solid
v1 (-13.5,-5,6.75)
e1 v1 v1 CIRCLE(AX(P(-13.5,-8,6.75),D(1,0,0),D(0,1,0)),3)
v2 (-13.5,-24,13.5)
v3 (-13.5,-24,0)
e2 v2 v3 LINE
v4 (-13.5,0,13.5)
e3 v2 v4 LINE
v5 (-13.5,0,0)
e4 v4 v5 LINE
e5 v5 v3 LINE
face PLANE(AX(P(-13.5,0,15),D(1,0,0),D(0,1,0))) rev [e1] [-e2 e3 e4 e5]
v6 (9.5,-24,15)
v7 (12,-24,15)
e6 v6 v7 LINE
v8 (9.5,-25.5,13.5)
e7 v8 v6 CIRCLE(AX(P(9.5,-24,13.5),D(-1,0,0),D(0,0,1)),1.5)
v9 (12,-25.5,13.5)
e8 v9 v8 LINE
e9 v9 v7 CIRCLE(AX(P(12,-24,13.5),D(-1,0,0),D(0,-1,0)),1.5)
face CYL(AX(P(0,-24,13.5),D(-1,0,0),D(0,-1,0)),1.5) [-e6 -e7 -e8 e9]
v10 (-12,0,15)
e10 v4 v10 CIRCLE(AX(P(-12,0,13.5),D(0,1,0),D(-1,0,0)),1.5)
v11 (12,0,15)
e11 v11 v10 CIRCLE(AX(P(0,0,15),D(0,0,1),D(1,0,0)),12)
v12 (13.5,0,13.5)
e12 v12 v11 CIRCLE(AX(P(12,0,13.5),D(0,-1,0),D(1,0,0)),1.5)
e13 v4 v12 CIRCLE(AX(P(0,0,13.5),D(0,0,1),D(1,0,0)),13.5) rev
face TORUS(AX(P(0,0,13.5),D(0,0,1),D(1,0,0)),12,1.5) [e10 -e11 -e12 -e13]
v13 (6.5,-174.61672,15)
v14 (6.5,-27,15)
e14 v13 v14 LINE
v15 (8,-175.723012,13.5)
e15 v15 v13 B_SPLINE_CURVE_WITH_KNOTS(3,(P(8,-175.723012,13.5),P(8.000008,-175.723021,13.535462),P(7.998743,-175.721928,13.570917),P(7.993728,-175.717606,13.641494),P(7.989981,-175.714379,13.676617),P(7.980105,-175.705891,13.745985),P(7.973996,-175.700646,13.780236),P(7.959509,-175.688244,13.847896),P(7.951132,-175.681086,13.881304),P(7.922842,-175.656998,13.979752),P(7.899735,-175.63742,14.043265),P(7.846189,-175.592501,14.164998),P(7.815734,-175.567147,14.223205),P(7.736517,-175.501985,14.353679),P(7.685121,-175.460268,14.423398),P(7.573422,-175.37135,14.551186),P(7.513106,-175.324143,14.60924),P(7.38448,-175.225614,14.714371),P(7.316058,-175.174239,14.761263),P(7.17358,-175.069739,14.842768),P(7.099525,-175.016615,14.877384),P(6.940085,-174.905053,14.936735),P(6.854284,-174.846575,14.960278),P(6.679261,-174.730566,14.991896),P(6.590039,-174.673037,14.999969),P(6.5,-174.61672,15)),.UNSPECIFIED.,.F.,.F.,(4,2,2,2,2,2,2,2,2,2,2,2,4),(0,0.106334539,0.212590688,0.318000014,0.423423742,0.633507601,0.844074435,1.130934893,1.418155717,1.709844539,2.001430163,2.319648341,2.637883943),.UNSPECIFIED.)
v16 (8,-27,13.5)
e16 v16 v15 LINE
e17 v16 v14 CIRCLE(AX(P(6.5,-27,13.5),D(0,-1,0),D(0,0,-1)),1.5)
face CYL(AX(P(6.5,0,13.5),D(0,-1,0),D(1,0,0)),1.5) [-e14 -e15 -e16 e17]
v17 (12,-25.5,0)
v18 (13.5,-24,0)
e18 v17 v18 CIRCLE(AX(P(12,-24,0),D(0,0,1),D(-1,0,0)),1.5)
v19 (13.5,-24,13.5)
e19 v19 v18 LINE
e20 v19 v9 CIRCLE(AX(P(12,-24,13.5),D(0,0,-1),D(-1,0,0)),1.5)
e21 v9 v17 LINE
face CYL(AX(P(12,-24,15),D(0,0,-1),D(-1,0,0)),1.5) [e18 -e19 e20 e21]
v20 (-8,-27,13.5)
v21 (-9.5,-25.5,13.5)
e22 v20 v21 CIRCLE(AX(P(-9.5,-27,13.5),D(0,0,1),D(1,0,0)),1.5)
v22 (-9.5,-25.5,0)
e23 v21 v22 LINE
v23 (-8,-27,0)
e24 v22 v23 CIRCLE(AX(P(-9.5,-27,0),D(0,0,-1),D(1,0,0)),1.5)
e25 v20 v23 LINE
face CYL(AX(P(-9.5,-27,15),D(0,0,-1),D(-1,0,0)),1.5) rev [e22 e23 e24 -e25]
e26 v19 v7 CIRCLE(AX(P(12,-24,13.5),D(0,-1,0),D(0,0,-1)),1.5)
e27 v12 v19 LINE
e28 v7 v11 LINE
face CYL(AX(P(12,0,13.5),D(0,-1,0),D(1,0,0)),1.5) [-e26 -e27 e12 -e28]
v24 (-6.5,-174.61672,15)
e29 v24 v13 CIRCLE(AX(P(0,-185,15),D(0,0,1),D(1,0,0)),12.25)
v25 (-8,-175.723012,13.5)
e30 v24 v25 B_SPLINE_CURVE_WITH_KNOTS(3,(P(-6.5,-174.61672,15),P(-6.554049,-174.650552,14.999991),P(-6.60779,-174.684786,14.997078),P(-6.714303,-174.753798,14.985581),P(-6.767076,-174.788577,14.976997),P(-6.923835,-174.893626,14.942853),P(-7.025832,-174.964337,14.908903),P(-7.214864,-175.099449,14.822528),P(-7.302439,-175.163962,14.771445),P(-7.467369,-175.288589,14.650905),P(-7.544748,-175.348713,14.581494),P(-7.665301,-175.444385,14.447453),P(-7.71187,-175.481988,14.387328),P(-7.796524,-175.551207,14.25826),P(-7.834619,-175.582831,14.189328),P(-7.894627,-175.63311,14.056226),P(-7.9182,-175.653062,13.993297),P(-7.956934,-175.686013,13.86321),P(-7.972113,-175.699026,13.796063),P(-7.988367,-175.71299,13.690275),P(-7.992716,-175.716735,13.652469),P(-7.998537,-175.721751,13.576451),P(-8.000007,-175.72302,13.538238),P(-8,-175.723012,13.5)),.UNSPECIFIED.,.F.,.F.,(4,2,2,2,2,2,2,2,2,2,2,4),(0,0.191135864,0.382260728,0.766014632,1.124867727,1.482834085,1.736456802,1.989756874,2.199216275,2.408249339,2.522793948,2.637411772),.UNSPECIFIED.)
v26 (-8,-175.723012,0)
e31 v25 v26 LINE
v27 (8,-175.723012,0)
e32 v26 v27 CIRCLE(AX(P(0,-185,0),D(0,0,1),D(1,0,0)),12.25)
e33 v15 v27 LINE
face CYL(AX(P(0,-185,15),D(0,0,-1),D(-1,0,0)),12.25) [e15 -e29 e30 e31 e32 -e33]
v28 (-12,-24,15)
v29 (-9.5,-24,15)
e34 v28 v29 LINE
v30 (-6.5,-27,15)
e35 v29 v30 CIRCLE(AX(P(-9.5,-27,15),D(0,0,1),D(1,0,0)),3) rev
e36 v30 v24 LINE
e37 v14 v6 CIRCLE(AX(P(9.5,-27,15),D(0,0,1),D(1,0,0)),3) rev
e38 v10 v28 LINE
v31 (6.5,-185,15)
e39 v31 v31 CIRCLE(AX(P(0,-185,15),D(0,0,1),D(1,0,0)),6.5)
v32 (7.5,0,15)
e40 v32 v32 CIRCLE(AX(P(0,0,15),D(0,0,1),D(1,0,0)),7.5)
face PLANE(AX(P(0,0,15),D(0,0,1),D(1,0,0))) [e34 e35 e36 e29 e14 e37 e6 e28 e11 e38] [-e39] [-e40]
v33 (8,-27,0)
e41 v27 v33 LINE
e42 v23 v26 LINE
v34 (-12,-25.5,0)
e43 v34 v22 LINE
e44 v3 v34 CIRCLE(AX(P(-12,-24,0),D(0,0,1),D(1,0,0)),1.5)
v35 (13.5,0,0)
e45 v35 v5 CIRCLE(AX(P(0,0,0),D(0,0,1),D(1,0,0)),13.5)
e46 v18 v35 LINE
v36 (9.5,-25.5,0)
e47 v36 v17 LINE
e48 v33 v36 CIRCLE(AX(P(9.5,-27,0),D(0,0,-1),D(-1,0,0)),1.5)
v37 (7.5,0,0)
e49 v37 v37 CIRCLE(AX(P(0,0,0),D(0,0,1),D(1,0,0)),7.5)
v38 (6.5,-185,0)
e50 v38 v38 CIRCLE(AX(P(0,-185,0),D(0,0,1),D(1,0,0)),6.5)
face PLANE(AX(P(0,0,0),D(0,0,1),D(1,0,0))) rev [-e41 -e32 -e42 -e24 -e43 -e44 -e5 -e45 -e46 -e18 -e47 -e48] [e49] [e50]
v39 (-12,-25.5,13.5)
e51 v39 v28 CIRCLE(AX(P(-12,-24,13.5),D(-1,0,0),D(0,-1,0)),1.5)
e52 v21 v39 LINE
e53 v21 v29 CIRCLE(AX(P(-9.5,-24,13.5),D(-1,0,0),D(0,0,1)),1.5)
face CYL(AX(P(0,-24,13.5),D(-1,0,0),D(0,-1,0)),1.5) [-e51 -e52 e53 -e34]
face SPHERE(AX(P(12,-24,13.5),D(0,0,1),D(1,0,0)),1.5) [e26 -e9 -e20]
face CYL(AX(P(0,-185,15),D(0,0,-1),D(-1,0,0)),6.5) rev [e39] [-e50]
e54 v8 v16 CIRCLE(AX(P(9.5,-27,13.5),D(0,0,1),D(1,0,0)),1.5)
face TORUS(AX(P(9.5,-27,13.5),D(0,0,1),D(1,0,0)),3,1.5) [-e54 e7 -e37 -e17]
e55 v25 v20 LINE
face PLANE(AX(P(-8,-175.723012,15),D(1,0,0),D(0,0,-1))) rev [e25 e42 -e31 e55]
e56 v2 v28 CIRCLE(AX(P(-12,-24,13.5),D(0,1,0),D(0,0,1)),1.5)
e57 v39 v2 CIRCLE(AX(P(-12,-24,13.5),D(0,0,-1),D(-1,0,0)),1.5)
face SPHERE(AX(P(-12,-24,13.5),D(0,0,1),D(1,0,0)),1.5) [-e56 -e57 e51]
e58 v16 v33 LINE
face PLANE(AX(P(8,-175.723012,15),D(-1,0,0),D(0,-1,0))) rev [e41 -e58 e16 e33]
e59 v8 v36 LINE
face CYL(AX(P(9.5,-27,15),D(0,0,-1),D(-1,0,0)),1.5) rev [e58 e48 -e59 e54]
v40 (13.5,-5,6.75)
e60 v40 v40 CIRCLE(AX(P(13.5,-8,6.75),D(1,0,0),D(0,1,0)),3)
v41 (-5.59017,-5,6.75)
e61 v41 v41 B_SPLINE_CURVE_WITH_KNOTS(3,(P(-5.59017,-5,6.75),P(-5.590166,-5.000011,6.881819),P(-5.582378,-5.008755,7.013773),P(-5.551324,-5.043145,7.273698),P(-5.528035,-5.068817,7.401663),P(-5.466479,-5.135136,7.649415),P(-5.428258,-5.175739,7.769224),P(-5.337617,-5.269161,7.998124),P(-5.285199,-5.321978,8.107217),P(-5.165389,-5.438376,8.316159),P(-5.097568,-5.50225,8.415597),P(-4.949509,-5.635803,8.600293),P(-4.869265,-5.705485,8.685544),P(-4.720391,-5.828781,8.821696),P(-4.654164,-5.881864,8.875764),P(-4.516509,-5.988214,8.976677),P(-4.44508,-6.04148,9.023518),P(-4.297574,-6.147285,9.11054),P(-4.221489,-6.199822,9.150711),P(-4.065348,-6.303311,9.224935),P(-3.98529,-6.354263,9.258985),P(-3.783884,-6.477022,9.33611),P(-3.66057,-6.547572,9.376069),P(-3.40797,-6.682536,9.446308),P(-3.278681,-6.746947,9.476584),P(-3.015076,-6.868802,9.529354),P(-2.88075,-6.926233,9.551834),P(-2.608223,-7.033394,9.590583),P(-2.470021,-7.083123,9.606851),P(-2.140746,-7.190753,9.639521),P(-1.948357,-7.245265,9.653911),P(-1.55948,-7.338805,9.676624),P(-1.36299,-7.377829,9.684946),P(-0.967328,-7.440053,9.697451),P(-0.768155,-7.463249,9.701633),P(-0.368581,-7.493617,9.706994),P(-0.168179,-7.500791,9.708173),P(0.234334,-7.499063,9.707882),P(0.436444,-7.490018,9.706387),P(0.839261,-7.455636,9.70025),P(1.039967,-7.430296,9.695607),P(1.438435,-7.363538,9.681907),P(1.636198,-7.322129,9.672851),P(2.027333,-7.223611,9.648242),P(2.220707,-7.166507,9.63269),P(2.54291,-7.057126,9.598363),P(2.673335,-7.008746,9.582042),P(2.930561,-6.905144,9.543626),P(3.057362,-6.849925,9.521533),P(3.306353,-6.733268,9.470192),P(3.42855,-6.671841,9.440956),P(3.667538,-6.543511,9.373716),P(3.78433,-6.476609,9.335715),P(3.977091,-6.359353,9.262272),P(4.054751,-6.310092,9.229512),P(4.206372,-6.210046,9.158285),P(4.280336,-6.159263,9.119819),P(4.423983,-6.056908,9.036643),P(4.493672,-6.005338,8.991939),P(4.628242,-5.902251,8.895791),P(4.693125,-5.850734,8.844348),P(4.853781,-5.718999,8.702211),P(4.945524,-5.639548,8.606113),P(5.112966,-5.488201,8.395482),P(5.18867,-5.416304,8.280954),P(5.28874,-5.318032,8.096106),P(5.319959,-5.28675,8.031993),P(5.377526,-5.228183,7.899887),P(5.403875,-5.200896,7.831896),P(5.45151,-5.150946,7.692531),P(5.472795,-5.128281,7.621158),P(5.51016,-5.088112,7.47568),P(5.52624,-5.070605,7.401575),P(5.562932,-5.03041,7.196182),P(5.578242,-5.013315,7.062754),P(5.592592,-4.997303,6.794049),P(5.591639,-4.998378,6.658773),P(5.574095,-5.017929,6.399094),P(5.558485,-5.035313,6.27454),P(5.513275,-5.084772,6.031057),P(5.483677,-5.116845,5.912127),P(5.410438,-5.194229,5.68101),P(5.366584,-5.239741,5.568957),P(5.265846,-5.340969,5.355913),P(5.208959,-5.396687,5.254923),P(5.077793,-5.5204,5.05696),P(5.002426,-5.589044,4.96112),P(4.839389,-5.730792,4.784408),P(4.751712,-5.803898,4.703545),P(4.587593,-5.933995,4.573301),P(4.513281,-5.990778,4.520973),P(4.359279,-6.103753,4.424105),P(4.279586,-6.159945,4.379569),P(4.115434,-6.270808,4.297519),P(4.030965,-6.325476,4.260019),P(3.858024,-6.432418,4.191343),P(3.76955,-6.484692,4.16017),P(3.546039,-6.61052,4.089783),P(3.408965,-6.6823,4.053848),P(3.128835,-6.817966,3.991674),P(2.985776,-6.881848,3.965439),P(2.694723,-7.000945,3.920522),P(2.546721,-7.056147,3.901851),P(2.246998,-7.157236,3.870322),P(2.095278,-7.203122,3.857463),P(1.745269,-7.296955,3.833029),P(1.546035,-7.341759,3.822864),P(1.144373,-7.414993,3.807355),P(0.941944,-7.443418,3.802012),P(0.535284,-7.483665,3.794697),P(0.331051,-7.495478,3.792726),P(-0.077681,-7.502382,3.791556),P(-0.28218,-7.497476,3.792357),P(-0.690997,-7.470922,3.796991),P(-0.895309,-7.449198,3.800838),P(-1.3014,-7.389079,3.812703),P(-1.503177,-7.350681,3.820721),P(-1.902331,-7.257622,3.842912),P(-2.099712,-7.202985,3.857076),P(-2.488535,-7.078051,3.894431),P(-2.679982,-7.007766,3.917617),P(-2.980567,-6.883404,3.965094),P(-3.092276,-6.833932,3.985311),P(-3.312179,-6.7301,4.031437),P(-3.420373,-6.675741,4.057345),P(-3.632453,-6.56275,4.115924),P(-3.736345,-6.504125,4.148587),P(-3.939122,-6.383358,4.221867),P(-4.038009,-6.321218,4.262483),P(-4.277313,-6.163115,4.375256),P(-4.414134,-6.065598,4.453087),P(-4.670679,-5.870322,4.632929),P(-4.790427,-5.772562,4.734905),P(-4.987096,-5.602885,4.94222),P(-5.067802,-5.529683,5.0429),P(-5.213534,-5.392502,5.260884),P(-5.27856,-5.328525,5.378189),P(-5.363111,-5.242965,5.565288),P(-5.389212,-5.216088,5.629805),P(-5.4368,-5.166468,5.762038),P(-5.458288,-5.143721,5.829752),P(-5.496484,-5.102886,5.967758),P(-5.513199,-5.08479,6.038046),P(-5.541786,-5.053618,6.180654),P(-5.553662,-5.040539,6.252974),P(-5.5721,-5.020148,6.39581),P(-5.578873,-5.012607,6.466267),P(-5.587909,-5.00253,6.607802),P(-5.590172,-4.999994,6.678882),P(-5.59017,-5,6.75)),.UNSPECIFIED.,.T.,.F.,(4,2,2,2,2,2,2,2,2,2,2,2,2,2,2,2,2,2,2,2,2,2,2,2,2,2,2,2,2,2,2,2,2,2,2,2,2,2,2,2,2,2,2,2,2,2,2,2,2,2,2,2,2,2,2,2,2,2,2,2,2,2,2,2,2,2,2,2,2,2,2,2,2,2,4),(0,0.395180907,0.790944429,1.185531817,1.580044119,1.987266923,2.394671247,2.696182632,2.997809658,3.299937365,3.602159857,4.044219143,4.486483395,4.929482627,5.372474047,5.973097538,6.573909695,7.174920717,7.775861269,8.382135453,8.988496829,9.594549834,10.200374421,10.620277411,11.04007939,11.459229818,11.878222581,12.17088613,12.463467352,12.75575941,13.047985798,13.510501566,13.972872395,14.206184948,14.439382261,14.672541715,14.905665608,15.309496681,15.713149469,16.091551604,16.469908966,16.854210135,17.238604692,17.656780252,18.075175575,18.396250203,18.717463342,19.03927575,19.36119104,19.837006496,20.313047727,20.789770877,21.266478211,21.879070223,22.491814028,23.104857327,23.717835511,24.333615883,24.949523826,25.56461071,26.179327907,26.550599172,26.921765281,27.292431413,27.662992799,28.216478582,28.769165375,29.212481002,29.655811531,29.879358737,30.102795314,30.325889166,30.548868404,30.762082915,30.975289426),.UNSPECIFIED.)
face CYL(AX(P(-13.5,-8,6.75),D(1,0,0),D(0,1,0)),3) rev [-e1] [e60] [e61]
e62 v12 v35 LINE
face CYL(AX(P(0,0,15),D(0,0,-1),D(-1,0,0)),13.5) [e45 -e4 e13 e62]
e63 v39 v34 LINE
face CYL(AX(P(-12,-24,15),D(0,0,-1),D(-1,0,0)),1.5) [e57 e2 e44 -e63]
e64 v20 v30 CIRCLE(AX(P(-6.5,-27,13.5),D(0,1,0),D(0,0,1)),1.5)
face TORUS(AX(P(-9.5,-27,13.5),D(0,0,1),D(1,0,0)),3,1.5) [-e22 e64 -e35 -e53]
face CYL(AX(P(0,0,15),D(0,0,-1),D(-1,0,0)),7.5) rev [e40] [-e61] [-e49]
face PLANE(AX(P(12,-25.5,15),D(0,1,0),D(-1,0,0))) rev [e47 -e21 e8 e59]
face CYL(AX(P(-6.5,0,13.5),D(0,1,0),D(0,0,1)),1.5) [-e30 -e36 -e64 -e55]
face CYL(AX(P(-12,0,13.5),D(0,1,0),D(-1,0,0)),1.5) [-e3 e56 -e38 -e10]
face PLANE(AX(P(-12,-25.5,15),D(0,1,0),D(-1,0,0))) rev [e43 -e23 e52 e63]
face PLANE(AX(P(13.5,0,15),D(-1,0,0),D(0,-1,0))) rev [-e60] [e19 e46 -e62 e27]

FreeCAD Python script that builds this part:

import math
import FreeCAD as App
import Part
import Sketcher
from FreeCAD import Vector
Q = App.Units.Quantity


def edges_at(feature, points):
    """Names of the edges that pass closest to the given points."""
    edges = feature.Shape.Edges
    near = lambda p: min(range(len(edges)), key=lambda i: edges[i].distToShape(Part.Vertex(*p))[0])
    return sorted({f"Edge{near(p) + 1}" for p in points})

doc = App.newDocument("Part")
body = doc.addObject("PartDesign::Body", "Body")

# Sketch on XY plane
sketch1 = body.newObject("Sketcher::SketchObject", "Sketch")
sketch1.AttachmentSupport = (doc.getObject("XY_Plane"), [""])
sketch1.MapMode = "FlatFace"
sketch1.addGeometry([
    Part.LineSegment(Vector(-13.5, 0, 0), Vector(-13.5, -24, 0)),  # 0
    Part.ArcOfCircle(Part.Circle(Vector(-12, -24, 0), Vector(0, 0, 1), 1.5), math.radians(180), math.radians(270)),  # 1
    Part.LineSegment(Vector(-12, -25.5, 0), Vector(-9.5, -25.5, 0)),  # 2
    Part.ArcOfCircle(Part.Circle(Vector(-9.5, -27, 0), Vector(0, 0, 1), 1.5), math.radians(0), math.radians(90)),  # 3
    Part.LineSegment(Vector(-8, -27, 0), Vector(-8, -175.723012, 0)),  # 4
    Part.ArcOfCircle(Part.Circle(Vector(0, -185, 0), Vector(0, 0, 1), 12.25), math.radians(130.772805), math.radians(409.227195)),  # 5
    Part.LineSegment(Vector(8, -175.723012, 0), Vector(8, -27, 0)),  # 6
    Part.ArcOfCircle(Part.Circle(Vector(9.5, -27, 0), Vector(0, 0, 1), 1.5), math.radians(90), math.radians(180)),  # 7
    Part.LineSegment(Vector(9.5, -25.5, 0), Vector(12, -25.5, 0)),  # 8
    Part.ArcOfCircle(Part.Circle(Vector(12, -24, 0), Vector(0, 0, 1), 1.5), math.radians(-90), math.radians(0)),  # 9
    Part.LineSegment(Vector(13.5, -24, 0), Vector(13.5, 0, 0)),  # 10
    Part.ArcOfCircle(Part.Circle(Vector(0, 0, 0), Vector(0, 0, 1), 13.5), math.radians(0), math.radians(180)),  # 11
    Part.Circle(Vector(0, -185, 0), Vector(0, 0, 1), 6.5),  # 12
    Part.Circle(Vector(0, 0, 0), Vector(0, 0, 1), 7.5),  # 13
], False)
sketch1.addConstraint([
    Sketcher.Constraint("Tangent", 0, 2, 1, 1),
    Sketcher.Constraint("Tangent", 1, 2, 2, 1),
    Sketcher.Constraint("Tangent", 2, 2, 3, 2),
    Sketcher.Constraint("Tangent", 3, 1, 4, 1),
    Sketcher.Constraint("Coincident", 4, 2, 5, 1),
    Sketcher.Constraint("Coincident", 5, 2, 6, 1),
    Sketcher.Constraint("Tangent", 6, 2, 7, 2),
    Sketcher.Constraint("Tangent", 7, 1, 8, 1),
    Sketcher.Constraint("Tangent", 8, 2, 9, 1),
    Sketcher.Constraint("Tangent", 9, 2, 10, 1),
    Sketcher.Constraint("Tangent", 10, 2, 11, 1),
    Sketcher.Constraint("Tangent", 11, 2, 0, 1),
    Sketcher.Constraint("Vertical", 0),
    Sketcher.Constraint("Horizontal", 2),
    Sketcher.Constraint("Vertical", 4),
    Sketcher.Constraint("Vertical", 6),
    Sketcher.Constraint("Horizontal", 8),
    Sketcher.Constraint("Vertical", 10),
    Sketcher.Constraint("Coincident", 11, 3, -1, 1),
    Sketcher.Constraint("Coincident", 13, 3, -1, 1),
    Sketcher.Constraint("Coincident", 12, 3, 5, 3),
    Sketcher.Constraint("Equal", 1, 3),
    Sketcher.Constraint("Equal", 3, 7),
    Sketcher.Constraint("Equal", 7, 9),
    Sketcher.Constraint("Symmetric", 3, 3, 7, 3, -2),
    Sketcher.Constraint("PointOnObject", 5, 3, -2),
    Sketcher.Constraint("Diameter", 12, Q("13 mm")),
    Sketcher.Constraint("Diameter", 13, Q("15 mm")),
    Sketcher.Constraint("Radius", 1, Q("1.5 mm")),
    Sketcher.Constraint("Radius", 11, Q("13.5 mm")),
    Sketcher.Constraint("DistanceY", 0, 2, 0, 1, Q("24 mm")),
    Sketcher.Constraint("Radius", 5, Q("12.25 mm")),
    Sketcher.Constraint("DistanceX", 2, 1, 2, 2, Q("2.5 mm")),
    Sketcher.Constraint("DistanceY", 5, 3, -1, 1, Q("185 mm")),
])
pad1 = body.newObject("PartDesign::Pad", "Pad")
pad1.Profile = sketch1
pad1.Length = 15
doc.recompute()

fillet = body.newObject("PartDesign::Fillet", "Fillet")
fillet.Base = (pad1, edges_at(pad1, [
    (-13.061, -25.061, 15),
    (-10.75, -25.5, 15),
    (-8.439, -25.939, 15),
    (-8, -101.362, 15),
    (8, -101.362, 15),
    (8.439, -25.939, 15),
    (10.75, -25.5, 15),
    (13.061, -25.061, 15),
    (13.5, -12, 15),
    (0, 13.5, 15),
    (-13.5, -12, 15),
]))
fillet.Radius = 1.5

# Sketch on YZ plane
sketch2 = body.newObject("Sketcher::SketchObject", "Sketch001")
sketch2.AttachmentSupport = (doc.getObject("YZ_Plane"), [""])
sketch2.MapMode = "FlatFace"
sketch2.AttachmentOffset = App.Placement(Vector(0, 0, 13.5), App.Rotation())
sketch2.addGeometry(Part.Circle(Vector(-8, 6.75, 0), Vector(0, 0, 1), 3), False)
sketch2.addConstraint([
    Sketcher.Constraint("Diameter", 0, Q("6 mm")),
    Sketcher.Constraint("DistanceX", 0, 3, -1, 1, Q("8 mm")),
    Sketcher.Constraint("DistanceY", -1, 1, 0, 3, Q("6.75 mm")),
])
pocket1 = body.newObject("PartDesign::Pocket", "Pocket")
pocket1.Profile = sketch2
pocket1.Type = "ThroughAll"

doc.recompute()
